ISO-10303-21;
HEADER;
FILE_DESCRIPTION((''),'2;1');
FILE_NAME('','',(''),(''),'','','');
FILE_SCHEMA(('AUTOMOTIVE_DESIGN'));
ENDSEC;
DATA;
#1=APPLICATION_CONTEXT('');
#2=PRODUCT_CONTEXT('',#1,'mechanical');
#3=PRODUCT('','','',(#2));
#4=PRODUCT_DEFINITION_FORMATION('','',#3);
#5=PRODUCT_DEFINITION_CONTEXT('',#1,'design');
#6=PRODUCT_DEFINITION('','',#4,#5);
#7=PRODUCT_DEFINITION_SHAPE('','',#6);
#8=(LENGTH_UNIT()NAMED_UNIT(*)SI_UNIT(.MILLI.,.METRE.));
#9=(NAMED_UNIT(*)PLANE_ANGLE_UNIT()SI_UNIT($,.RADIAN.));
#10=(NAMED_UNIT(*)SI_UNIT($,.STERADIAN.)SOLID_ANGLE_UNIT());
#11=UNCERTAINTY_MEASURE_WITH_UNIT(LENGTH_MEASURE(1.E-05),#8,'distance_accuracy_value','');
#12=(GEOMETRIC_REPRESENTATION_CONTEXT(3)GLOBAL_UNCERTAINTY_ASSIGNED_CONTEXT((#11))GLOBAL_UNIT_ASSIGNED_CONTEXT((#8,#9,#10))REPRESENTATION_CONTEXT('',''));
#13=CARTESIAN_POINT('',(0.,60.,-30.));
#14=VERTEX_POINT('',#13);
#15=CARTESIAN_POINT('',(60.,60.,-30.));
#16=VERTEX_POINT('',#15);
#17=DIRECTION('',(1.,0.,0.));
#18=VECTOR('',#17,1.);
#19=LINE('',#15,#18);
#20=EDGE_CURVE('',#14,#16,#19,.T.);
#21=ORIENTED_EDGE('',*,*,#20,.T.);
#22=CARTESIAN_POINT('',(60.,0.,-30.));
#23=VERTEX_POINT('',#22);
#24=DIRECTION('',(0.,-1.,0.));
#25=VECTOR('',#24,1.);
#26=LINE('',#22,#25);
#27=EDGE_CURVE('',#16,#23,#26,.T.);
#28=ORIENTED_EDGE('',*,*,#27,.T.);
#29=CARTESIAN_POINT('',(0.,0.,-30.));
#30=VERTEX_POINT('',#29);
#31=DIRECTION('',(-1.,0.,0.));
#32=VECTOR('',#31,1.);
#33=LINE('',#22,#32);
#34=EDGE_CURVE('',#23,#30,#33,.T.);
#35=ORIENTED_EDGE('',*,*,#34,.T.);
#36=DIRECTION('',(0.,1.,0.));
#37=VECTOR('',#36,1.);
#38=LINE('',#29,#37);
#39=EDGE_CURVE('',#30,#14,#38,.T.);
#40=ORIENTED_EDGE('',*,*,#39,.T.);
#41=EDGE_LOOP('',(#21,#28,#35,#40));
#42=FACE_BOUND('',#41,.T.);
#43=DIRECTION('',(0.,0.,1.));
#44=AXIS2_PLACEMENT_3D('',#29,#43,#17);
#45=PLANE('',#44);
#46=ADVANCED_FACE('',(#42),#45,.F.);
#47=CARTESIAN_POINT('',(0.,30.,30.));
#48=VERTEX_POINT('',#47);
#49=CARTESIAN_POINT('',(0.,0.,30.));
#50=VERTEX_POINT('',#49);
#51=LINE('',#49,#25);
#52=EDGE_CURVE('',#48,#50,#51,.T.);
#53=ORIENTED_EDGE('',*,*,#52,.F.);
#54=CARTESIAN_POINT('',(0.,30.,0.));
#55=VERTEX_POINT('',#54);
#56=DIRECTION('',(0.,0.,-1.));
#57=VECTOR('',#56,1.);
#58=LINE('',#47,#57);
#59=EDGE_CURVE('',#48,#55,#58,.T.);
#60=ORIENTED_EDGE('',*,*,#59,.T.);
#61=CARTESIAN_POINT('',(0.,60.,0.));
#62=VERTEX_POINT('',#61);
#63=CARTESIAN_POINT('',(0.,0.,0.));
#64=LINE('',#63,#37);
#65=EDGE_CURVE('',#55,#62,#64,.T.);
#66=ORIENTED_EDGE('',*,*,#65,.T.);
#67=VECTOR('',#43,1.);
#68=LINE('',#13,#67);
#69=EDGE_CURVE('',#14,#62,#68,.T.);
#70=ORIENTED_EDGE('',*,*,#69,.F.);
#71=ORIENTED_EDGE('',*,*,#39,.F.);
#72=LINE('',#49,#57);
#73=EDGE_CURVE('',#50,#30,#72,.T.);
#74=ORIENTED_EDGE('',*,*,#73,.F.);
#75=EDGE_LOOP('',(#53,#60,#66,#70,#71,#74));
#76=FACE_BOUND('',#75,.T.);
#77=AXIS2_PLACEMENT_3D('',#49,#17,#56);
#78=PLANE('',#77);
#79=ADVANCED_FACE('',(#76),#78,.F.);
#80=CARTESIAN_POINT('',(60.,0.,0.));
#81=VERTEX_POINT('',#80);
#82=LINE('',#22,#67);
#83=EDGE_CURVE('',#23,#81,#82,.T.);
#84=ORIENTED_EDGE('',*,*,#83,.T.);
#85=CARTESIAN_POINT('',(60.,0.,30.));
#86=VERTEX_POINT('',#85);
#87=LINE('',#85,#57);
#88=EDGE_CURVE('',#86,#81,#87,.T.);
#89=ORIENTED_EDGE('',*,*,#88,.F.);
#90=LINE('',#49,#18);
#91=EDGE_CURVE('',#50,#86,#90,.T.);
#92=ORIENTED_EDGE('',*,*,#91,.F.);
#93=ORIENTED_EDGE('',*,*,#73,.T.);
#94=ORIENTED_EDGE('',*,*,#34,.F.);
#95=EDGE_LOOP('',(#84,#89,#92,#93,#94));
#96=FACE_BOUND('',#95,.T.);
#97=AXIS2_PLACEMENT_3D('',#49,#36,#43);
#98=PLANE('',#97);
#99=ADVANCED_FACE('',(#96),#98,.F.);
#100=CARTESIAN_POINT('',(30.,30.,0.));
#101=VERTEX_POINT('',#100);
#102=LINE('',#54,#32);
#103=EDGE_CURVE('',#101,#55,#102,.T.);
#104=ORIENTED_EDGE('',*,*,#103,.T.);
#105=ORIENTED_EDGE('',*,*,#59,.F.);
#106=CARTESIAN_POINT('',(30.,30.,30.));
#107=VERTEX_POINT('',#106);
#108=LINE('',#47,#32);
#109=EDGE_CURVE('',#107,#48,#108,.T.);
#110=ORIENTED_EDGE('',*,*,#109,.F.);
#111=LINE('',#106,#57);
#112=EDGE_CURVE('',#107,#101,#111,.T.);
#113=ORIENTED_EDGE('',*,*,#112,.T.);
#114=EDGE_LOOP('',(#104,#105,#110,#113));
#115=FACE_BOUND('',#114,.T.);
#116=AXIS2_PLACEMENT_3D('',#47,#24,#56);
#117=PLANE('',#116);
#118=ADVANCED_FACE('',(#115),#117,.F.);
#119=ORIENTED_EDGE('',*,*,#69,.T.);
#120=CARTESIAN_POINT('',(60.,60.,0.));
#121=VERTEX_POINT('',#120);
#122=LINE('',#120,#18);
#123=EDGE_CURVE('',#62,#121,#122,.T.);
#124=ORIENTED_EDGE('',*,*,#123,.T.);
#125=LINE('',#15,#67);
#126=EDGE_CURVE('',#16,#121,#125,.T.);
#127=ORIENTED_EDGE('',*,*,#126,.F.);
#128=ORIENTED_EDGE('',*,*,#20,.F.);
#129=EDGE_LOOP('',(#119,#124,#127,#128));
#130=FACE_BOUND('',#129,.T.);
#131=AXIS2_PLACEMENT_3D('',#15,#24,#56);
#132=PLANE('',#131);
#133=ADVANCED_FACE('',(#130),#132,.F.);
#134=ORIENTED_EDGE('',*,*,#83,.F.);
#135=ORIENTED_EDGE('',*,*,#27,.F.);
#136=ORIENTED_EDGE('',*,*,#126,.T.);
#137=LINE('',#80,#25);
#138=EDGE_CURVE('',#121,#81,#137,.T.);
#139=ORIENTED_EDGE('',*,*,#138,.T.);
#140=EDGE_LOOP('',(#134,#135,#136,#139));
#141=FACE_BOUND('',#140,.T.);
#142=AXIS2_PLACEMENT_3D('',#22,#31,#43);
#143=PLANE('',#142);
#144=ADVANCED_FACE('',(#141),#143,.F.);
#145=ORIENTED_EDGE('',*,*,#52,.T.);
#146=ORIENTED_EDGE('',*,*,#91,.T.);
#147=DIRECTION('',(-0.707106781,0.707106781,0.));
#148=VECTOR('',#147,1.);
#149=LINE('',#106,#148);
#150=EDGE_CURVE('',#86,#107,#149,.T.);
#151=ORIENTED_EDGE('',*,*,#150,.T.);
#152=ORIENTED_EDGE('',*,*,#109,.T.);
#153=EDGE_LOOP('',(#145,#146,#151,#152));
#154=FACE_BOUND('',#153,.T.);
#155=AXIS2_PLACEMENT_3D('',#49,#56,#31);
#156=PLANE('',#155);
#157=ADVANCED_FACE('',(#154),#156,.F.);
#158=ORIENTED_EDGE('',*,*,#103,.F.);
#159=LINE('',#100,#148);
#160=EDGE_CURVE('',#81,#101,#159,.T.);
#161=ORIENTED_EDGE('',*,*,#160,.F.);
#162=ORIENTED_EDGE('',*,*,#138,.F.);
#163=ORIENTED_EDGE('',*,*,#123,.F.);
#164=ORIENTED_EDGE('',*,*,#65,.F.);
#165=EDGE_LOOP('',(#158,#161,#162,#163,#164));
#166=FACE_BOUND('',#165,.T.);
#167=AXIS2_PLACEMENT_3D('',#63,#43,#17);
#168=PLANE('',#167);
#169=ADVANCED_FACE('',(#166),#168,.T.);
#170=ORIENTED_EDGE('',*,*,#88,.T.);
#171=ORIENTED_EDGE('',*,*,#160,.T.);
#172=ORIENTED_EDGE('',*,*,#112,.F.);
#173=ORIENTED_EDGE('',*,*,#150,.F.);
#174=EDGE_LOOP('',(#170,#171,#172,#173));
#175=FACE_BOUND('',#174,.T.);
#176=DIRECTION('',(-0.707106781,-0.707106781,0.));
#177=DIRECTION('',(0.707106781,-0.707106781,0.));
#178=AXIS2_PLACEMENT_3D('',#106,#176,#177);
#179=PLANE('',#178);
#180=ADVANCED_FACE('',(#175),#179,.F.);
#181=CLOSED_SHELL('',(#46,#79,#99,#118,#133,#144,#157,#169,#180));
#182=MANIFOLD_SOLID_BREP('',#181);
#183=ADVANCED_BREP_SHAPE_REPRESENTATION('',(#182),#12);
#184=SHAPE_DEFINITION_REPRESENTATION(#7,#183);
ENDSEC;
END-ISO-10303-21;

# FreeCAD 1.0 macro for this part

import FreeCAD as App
import Part
import Sketcher

V = App.Vector


def add_polygon(sketch, points):
    """Adds a closed chain of lines whose ends are joined by coincident constraints."""
    first, n = sketch.GeometryCount, len(points)
    for a, b in zip(points, points[1:] + points[:1]):
        sketch.addGeometry(Part.LineSegment(App.Vector(*a, 0), App.Vector(*b, 0)), False)
    for i in range(n):
        sketch.addConstraint(Sketcher.Constraint("Coincident", first + i, 2, first + (i + 1) % n, 1))

doc = App.newDocument("Part")
params = doc.addObject("Spreadsheet::Sheet", "Params")
for row, (alias, value) in enumerate([
    ("sketch1_width", "60 mm"),
    ("sketch1_width2", "30 mm"),
    ("pad1_length", "30 mm"),
    ("sketch2_width", "60 mm"),
    ("pad2_length", "30 mm"),
], start=1):
    params.set(f"A{row}", alias)
    params.set(f"B{row}", "=" + value)
    params.setAlias(f"B{row}", alias)

body = doc.addObject("PartDesign::Body", "Body")

sketch1 = body.newObject("Sketcher::SketchObject", "Sketch")
sketch1.AttachmentSupport = (doc.getObject("XY_Plane"), [""])
sketch1.MapMode = "FlatFace"
add_polygon(sketch1, [(0, 0), (60, 0), (30, 30), (0, 30)])
sketch1.addConstraint(Sketcher.Constraint("Horizontal", 0))
sketch1.addConstraint(Sketcher.Constraint("Horizontal", 2))
sketch1.addConstraint(Sketcher.Constraint("Vertical", 3))
sketch1.addConstraint(Sketcher.Constraint("Coincident", 3, 2, -1, 1))
sketch1.addConstraint(Sketcher.Constraint("Equal", 2, 3))
sketch1.addConstraint(Sketcher.Constraint("DistanceX", 0, 1, 0, 2, 60.0))
sketch1.addConstraint(Sketcher.Constraint("DistanceX", 2, 2, 2, 1, 30.0))
sketch1.setExpression("Constraints[9]", "Params.sketch1_width")
sketch1.setExpression("Constraints[10]", "Params.sketch1_width2")
pad1 = body.newObject("PartDesign::Pad", "Pad")
pad1.Profile = sketch1
pad1.setExpression("Length", "Params.pad1_length")

sketch2 = body.newObject("Sketcher::SketchObject", "Sketch001")
sketch2.AttachmentSupport = (doc.getObject("XY_Plane"), [""])
sketch2.MapMode = "FlatFace"
add_polygon(sketch2, [(60, 60), (60, 0), (0, 0), (0, 60)])
sketch2.addConstraint(Sketcher.Constraint("Vertical", 0))
sketch2.addConstraint(Sketcher.Constraint("Horizontal", 1))
sketch2.addConstraint(Sketcher.Constraint("Vertical", 2))
sketch2.addConstraint(Sketcher.Constraint("Horizontal", 3))
sketch2.addConstraint(Sketcher.Constraint("Coincident", 1, 2, -1, 1))
sketch2.addConstraint(Sketcher.Constraint("Equal", 3, 0))
sketch2.addConstraint(Sketcher.Constraint("DistanceX", 1, 2, 1, 1, 60.0))
sketch2.setExpression("Constraints[10]", "Params.sketch2_width")
pad2 = body.newObject("PartDesign::Pad", "Pad001")
pad2.Profile = sketch2
pad2.setExpression("Length", "Params.pad2_length")
pad2.Reversed = True

doc.recompute()
